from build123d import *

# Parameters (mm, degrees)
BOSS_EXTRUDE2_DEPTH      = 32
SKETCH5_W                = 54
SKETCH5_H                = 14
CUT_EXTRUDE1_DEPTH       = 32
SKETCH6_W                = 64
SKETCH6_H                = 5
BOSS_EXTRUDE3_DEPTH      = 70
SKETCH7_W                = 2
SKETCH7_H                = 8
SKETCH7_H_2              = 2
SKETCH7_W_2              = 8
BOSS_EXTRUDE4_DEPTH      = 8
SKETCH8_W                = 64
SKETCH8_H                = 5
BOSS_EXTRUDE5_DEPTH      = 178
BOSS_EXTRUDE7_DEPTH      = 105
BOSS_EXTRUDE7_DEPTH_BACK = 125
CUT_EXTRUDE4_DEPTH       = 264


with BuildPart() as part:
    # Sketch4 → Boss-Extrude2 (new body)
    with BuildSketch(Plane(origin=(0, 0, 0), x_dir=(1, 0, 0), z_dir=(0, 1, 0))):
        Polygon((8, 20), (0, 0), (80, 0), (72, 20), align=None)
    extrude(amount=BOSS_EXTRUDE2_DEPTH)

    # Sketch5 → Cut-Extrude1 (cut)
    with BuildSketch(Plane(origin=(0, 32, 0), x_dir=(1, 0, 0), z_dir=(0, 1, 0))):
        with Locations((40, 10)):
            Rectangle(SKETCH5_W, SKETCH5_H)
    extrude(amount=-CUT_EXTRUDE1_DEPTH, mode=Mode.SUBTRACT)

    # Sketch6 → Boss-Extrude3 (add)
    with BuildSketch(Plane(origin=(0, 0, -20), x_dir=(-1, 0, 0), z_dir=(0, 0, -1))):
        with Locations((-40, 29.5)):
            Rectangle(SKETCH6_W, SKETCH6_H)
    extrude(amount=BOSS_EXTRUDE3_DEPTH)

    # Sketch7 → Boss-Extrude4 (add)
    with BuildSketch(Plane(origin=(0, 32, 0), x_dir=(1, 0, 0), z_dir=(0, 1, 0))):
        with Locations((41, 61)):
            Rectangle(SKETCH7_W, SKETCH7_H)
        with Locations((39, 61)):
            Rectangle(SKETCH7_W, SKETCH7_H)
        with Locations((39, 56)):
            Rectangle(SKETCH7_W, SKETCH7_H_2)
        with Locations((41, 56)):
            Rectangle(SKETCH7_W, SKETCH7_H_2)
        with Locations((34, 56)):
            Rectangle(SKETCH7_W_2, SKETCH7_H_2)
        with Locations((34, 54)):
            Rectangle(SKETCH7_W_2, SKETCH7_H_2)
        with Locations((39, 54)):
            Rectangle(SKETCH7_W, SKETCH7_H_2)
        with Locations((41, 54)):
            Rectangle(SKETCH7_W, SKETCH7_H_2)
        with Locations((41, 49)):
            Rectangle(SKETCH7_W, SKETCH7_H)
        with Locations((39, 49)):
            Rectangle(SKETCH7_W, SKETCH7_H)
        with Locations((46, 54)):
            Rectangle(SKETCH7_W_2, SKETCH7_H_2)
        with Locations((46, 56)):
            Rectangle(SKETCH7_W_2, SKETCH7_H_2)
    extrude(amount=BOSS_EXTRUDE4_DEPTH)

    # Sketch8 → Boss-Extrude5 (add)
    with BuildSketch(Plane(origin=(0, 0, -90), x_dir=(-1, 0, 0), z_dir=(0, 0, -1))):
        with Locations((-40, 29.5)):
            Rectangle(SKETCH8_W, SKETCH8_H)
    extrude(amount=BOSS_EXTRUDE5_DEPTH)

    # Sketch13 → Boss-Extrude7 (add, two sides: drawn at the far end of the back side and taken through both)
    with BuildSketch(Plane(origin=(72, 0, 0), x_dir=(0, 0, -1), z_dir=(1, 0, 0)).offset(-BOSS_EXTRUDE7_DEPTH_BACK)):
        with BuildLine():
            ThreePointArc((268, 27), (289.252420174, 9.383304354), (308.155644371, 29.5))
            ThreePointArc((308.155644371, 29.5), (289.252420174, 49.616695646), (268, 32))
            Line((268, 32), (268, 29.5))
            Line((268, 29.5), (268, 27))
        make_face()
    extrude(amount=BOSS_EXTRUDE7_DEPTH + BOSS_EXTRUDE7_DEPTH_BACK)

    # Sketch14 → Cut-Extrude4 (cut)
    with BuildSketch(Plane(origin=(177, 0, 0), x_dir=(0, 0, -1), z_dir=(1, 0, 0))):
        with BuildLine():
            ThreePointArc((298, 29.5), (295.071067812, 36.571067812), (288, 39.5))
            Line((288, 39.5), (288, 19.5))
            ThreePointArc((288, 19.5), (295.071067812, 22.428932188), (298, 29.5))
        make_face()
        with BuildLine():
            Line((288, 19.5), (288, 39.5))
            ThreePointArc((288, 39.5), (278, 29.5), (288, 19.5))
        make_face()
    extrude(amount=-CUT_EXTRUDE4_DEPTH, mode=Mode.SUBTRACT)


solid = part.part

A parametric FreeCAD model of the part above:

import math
import FreeCAD as App
import Part
import Sketcher

V = App.Vector

doc = App.newDocument("Part")
params = doc.addObject("Spreadsheet::Sheet", "Params")
for row, (alias, value) in enumerate([
    ("sketch1_width", "80 mm"),
    ("sketch1_width2", "64 mm"),
    ("pad1_length", "32 mm"),
    ("sketch2_width", "54 mm"),
    ("sketch2_height", "14 mm"),
    ("pocket1_length", "32 mm"),
    ("sketch3_width", "64 mm"),
    ("sketch3_height", "5 mm"),
    ("pad2_length", "70 mm"),
    ("sketch4_width", "4 mm"),
    ("sketch4_width2", "8 mm"),
    ("pad3_length", "8 mm"),
    ("sketch5_width", "64 mm"),
    ("sketch5_height", "5 mm"),
    ("pad4_length", "178 mm"),
    ("sketch6_width", "5 mm"),
    ("pad5_length", "105 mm"),
    ("pad5_length2", "125 mm"),
    ("sketch7_radius", "10 mm"),
    ("pocket2_length", "264 mm"),
], start=1):
    params.set(f"A{row}", alias)
    params.set(f"B{row}", "=" + value)
    params.setAlias(f"B{row}", alias)

body = doc.addObject("PartDesign::Body", "Body")

# Sketch on XZ plane
sketch1 = body.newObject("Sketcher::SketchObject", "Sketch")
sketch1.AttachmentSupport = (doc.getObject("XZ_Plane"), [""])
sketch1.MapMode = "FlatFace"
sketch1.addGeometry([
    Part.LineSegment(V(8, -20, 0), V(0, 0, 0)),
    Part.LineSegment(V(0, 0, 0), V(80, 0, 0)),
    Part.LineSegment(V(80, 0, 0), V(72, -20, 0)),
    Part.LineSegment(V(72, -20, 0), V(8, -20, 0)),
], False)
sketch1.addConstraint([
    Sketcher.Constraint("Coincident", 0, 2, 1, 1),
    Sketcher.Constraint("Coincident", 1, 2, 2, 1),
    Sketcher.Constraint("Coincident", 2, 2, 3, 1),
    Sketcher.Constraint("Coincident", 3, 2, 0, 1),
    Sketcher.Constraint("Horizontal", 1),
    Sketcher.Constraint("Horizontal", 3),
    Sketcher.Constraint("Coincident", 0, 2, -1, 1),
    Sketcher.Constraint("Equal", 0, 2),
    Sketcher.Constraint("DistanceX", 1, 1, 1, 2, 80.0),
    Sketcher.Constraint("DistanceX", 3, 2, 3, 1, 64.0),
    Sketcher.Constraint("DistanceY", 2, 2, -1, 1, 20.0),
])
sketch1.setExpression("Constraints[8]", "Params.sketch1_width")
sketch1.setExpression("Constraints[9]", "Params.sketch1_width2")
pad1 = body.newObject("PartDesign::Pad", "Pad")
pad1.Profile = sketch1
pad1.setExpression("Length", "Params.pad1_length")
pad1.Reversed = True

# Sketch on XZ plane
sketch2 = body.newObject("Sketcher::SketchObject", "Sketch001")
sketch2.AttachmentSupport = (doc.getObject("XZ_Plane"), [""])
sketch2.MapMode = "FlatFace"
sketch2.AttachmentOffset = App.Placement(V(0, 0, -32), App.Rotation())
sketch2.addGeometry([
    Part.LineSegment(V(13, -17, 0), V(13, -3, 0)),
    Part.LineSegment(V(13, -3, 0), V(67, -3, 0)),
    Part.LineSegment(V(67, -3, 0), V(67, -17, 0)),
    Part.LineSegment(V(67, -17, 0), V(13, -17, 0)),
], False)
sketch2.addConstraint([
    Sketcher.Constraint("Coincident", 0, 2, 1, 1),
    Sketcher.Constraint("Coincident", 1, 2, 2, 1),
    Sketcher.Constraint("Coincident", 2, 2, 3, 1),
    Sketcher.Constraint("Coincident", 3, 2, 0, 1),
    Sketcher.Constraint("Vertical", 0),
    Sketcher.Constraint("Horizontal", 1),
    Sketcher.Constraint("Vertical", 2),
    Sketcher.Constraint("Horizontal", 3),
    Sketcher.Constraint("DistanceX", 1, 1, 1, 2, 54.0),
    Sketcher.Constraint("DistanceY", 0, 1, 0, 2, 14.0),
    Sketcher.Constraint("DistanceX", -1, 1, 0, 2, 13.0),
    Sketcher.Constraint("DistanceY", 0, 2, -1, 1, 3.0),
])
sketch2.setExpression("Constraints[8]", "Params.sketch2_width")
sketch2.setExpression("Constraints[9]", "Params.sketch2_height")
pocket1 = body.newObject("PartDesign::Pocket", "Pocket")
pocket1.Profile = sketch2
pocket1.setExpression("Length", "Params.pocket1_length")
pocket1.Reversed = True

# Sketch on XY plane
sketch3 = body.newObject("Sketcher::SketchObject", "Sketch002")
sketch3.AttachmentSupport = (doc.getObject("XY_Plane"), [""])
sketch3.MapMode = "FlatFace"
sketch3.AttachmentOffset = App.Placement(V(0, 0, -20), App.Rotation())
sketch3.addGeometry([
    Part.LineSegment(V(72, 32, 0), V(72, 27, 0)),
    Part.LineSegment(V(72, 27, 0), V(8, 27, 0)),
    Part.LineSegment(V(8, 27, 0), V(8, 32, 0)),
    Part.LineSegment(V(8, 32, 0), V(72, 32, 0)),
], False)
sketch3.addConstraint([
    Sketcher.Constraint("Coincident", 0, 2, 1, 1),
    Sketcher.Constraint("Coincident", 1, 2, 2, 1),
    Sketcher.Constraint("Coincident", 2, 2, 3, 1),
    Sketcher.Constraint("Coincident", 3, 2, 0, 1),
    Sketcher.Constraint("Vertical", 0),
    Sketcher.Constraint("Horizontal", 1),
    Sketcher.Constraint("Vertical", 2),
    Sketcher.Constraint("Horizontal", 3),
    Sketcher.Constraint("DistanceX", 1, 2, 1, 1, 64.0),
    Sketcher.Constraint("DistanceY", 0, 2, 0, 1, 5.0),
    Sketcher.Constraint("DistanceX", -1, 1, 0, 2, 72.0),
    Sketcher.Constraint("DistanceY", -1, 1, 0, 2, 27.0),
])
sketch3.setExpression("Constraints[8]", "Params.sketch3_width")
sketch3.setExpression("Constraints[9]", "Params.sketch3_height")
pad2 = body.newObject("PartDesign::Pad", "Pad001")
pad2.Profile = sketch3
pad2.setExpression("Length", "Params.pad2_length")
pad2.Reversed = True

# Sketch on XZ plane
sketch4 = body.newObject("Sketcher::SketchObject", "Sketch003")
sketch4.AttachmentSupport = (doc.getObject("XZ_Plane"), [""])
sketch4.MapMode = "FlatFace"
sketch4.AttachmentOffset = App.Placement(V(0, 0, -32), App.Rotation())
sketch4.addGeometry([
    Part.LineSegment(V(42, -65, 0), V(38, -65, 0)),  # 0
    Part.LineSegment(V(38, -65, 0), V(38, -57, 0)),  # 1
    Part.LineSegment(V(38, -57, 0), V(30, -57, 0)),  # 2
    Part.LineSegment(V(30, -57, 0), V(30, -53, 0)),  # 3
    Part.LineSegment(V(30, -53, 0), V(38, -53, 0)),  # 4
    Part.LineSegment(V(38, -53, 0), V(38, -45, 0)),  # 5
    Part.LineSegment(V(38, -45, 0), V(42, -45, 0)),  # 6
    Part.LineSegment(V(42, -45, 0), V(42, -53, 0)),  # 7
    Part.LineSegment(V(42, -53, 0), V(50, -53, 0)),  # 8
    Part.LineSegment(V(50, -53, 0), V(50, -57, 0)),  # 9
    Part.LineSegment(V(50, -57, 0), V(42, -57, 0)),  # 10
    Part.LineSegment(V(42, -57, 0), V(42, -65, 0)),  # 11
], False)
sketch4.addConstraint([
    Sketcher.Constraint("Coincident", 0, 2, 1, 1),
    Sketcher.Constraint("Coincident", 1, 2, 2, 1),
    Sketcher.Constraint("Coincident", 2, 2, 3, 1),
    Sketcher.Constraint("Coincident", 3, 2, 4, 1),
    Sketcher.Constraint("Coincident", 4, 2, 5, 1),
    Sketcher.Constraint("Coincident", 5, 2, 6, 1),
    Sketcher.Constraint("Coincident", 6, 2, 7, 1),
    Sketcher.Constraint("Coincident", 7, 2, 8, 1),
    Sketcher.Constraint("Coincident", 8, 2, 9, 1),
    Sketcher.Constraint("Coincident", 9, 2, 10, 1),
    Sketcher.Constraint("Coincident", 10, 2, 11, 1),
    Sketcher.Constraint("Coincident", 11, 2, 0, 1),
    Sketcher.Constraint("Horizontal", 0),
    Sketcher.Constraint("Vertical", 1),
    Sketcher.Constraint("Horizontal", 2),
    Sketcher.Constraint("Vertical", 3),
    Sketcher.Constraint("Horizontal", 4),
    Sketcher.Constraint("Vertical", 5),
    Sketcher.Constraint("Horizontal", 6),
    Sketcher.Constraint("Vertical", 7),
    Sketcher.Constraint("Horizontal", 8),
    Sketcher.Constraint("Vertical", 9),
    Sketcher.Constraint("Horizontal", 10),
    Sketcher.Constraint("Vertical", 11),
    Sketcher.Constraint("Horizontal", 4, 2, 7, 2),
    Sketcher.Constraint("Horizontal", 2, 2, 9, 2),
    Sketcher.Constraint("Vertical", 1, 2, 4, 2),
    Sketcher.Constraint("Vertical", 7, 2, 10, 2),
    Sketcher.Constraint("Equal", 4, 8),
    Sketcher.Constraint("Equal", 10, 1),
    Sketcher.Constraint("Equal", 6, 3),
    Sketcher.Constraint("Equal", 1, 5),
    Sketcher.Constraint("DistanceX", 0, 2, 0, 1, 4.0),
    Sketcher.Constraint("DistanceX", 2, 2, 2, 1, 8.0),
    Sketcher.Constraint("DistanceX", -1, 1, 0, 2, 38.0),
    Sketcher.Constraint("DistanceY", 0, 2, -1, 1, 65.0),
])
sketch4.setExpression("Constraints[32]", "Params.sketch4_width")
sketch4.setExpression("Constraints[33]", "Params.sketch4_width2")
pad3 = body.newObject("PartDesign::Pad", "Pad002")
pad3.Profile = sketch4
pad3.setExpression("Length", "Params.pad3_length")
pad3.Reversed = True

# Sketch on XY plane
sketch5 = body.newObject("Sketcher::SketchObject", "Sketch004")
sketch5.AttachmentSupport = (doc.getObject("XY_Plane"), [""])
sketch5.MapMode = "FlatFace"
sketch5.AttachmentOffset = App.Placement(V(0, 0, -90), App.Rotation())
sketch5.addGeometry([
    Part.LineSegment(V(72, 32, 0), V(72, 27, 0)),
    Part.LineSegment(V(72, 27, 0), V(8, 27, 0)),
    Part.LineSegment(V(8, 27, 0), V(8, 32, 0)),
    Part.LineSegment(V(8, 32, 0), V(72, 32, 0)),
], False)
sketch5.addConstraint([
    Sketcher.Constraint("Coincident", 0, 2, 1, 1),
    Sketcher.Constraint("Coincident", 1, 2, 2, 1),
    Sketcher.Constraint("Coincident", 2, 2, 3, 1),
    Sketcher.Constraint("Coincident", 3, 2, 0, 1),
    Sketcher.Constraint("Vertical", 0),
    Sketcher.Constraint("Horizontal", 1),
    Sketcher.Constraint("Vertical", 2),
    Sketcher.Constraint("Horizontal", 3),
    Sketcher.Constraint("DistanceX", 1, 2, 1, 1, 64.0),
    Sketcher.Constraint("DistanceY", 0, 2, 0, 1, 5.0),
    Sketcher.Constraint("DistanceX", -1, 1, 0, 2, 72.0),
    Sketcher.Constraint("DistanceY", -1, 1, 0, 2, 27.0),
])
sketch5.setExpression("Constraints[8]", "Params.sketch5_width")
sketch5.setExpression("Constraints[9]", "Params.sketch5_height")
pad4 = body.newObject("PartDesign::Pad", "Pad003")
pad4.Profile = sketch5
pad4.setExpression("Length", "Params.pad4_length")
pad4.Reversed = True

# Sketch on YZ plane
sketch6 = body.newObject("Sketcher::SketchObject", "Sketch005")
sketch6.AttachmentSupport = (doc.getObject("YZ_Plane"), [""])
sketch6.MapMode = "FlatFace"
sketch6.AttachmentOffset = App.Placement(V(0, 0, 72), App.Rotation())
sketch6.addGeometry([
    Part.ArcOfCircle(Part.Circle(V(30, -288, 0), V(0, 0, 1), 20), math.radians(97), math.radians(270)),
    Part.ArcOfCircle(Part.Circle(V(30, -288, 0), V(0, 0, 1), 20), math.radians(-90), math.radians(83)),
    Part.LineSegment(V(32, -268, 0), V(27, -268, 0)),
], False)
sketch6.addConstraint([
    Sketcher.Constraint("Tangent", 0, 2, 1, 1),
    Sketcher.Constraint("Coincident", 1, 2, 2, 1),
    Sketcher.Constraint("Coincident", 2, 2, 0, 1),
    Sketcher.Constraint("Horizontal", 2),
    Sketcher.Constraint("Equal", 0, 1),
    Sketcher.Constraint("Vertical", 1, 3, 0, 2),
    Sketcher.Constraint("DistanceX", 2, 2, 2, 1, 5.0),
    Sketcher.Constraint("DistanceY", 0, 3, -1, 1, 288.0),
    Sketcher.Constraint("DistanceX", -1, 1, 1, 2, 32.0),
    Sketcher.Constraint("DistanceY", 1, 2, -1, 1, 268.0),
])
sketch6.setExpression("Constraints[6]", "Params.sketch6_width")
pad5 = body.newObject("PartDesign::Pad", "Pad004")
pad5.Profile = sketch6
pad5.Type = "TwoLengths"
pad5.setExpression("Length", "Params.pad5_length")
pad5.setExpression("Length2", "Params.pad5_length2")

# Sketch on YZ plane
sketch7 = body.newObject("Sketcher::SketchObject", "Sketch006")
sketch7.AttachmentSupport = (doc.getObject("YZ_Plane"), [""])
sketch7.MapMode = "FlatFace"
sketch7.AttachmentOffset = App.Placement(V(0, 0, 177), App.Rotation())
sketch7.addGeometry([
    Part.ArcOfCircle(Part.Circle(V(30, -288, 0), V(0, 0, 1), 10), math.radians(-90), math.radians(0)),
    Part.ArcOfCircle(Part.Circle(V(30, -288, 0), V(0, 0, 1), 10), math.radians(0), math.radians(180)),
    Part.ArcOfCircle(Part.Circle(V(30, -288, 0), V(0, 0, 1), 10), math.radians(180), math.radians(270)),
], False)
sketch7.addConstraint([
    Sketcher.Constraint("Tangent", 0, 2, 1, 1),
    Sketcher.Constraint("Tangent", 1, 2, 2, 1),
    Sketcher.Constraint("Tangent", 2, 2, 0, 1),
    Sketcher.Constraint("Horizontal", 2, 3, 0, 2),
    Sketcher.Constraint("Horizontal", 0, 2, 1, 2),
    Sketcher.Constraint("Vertical", 1, 3, 2, 2),
    Sketcher.Constraint("Radius", 0, 10.0),
    Sketcher.Constraint("DistanceY", 0, 3, -1, 1, 288.0),
    Sketcher.Constraint("DistanceX", -1, 1, 0, 3, 29.5),
])
sketch7.setExpression("Constraints[6]", "Params.sketch7_radius")
pocket2 = body.newObject("PartDesign::Pocket", "Pocket001")
pocket2.Profile = sketch7
pocket2.setExpression("Length", "Params.pocket2_length")

doc.recompute()
